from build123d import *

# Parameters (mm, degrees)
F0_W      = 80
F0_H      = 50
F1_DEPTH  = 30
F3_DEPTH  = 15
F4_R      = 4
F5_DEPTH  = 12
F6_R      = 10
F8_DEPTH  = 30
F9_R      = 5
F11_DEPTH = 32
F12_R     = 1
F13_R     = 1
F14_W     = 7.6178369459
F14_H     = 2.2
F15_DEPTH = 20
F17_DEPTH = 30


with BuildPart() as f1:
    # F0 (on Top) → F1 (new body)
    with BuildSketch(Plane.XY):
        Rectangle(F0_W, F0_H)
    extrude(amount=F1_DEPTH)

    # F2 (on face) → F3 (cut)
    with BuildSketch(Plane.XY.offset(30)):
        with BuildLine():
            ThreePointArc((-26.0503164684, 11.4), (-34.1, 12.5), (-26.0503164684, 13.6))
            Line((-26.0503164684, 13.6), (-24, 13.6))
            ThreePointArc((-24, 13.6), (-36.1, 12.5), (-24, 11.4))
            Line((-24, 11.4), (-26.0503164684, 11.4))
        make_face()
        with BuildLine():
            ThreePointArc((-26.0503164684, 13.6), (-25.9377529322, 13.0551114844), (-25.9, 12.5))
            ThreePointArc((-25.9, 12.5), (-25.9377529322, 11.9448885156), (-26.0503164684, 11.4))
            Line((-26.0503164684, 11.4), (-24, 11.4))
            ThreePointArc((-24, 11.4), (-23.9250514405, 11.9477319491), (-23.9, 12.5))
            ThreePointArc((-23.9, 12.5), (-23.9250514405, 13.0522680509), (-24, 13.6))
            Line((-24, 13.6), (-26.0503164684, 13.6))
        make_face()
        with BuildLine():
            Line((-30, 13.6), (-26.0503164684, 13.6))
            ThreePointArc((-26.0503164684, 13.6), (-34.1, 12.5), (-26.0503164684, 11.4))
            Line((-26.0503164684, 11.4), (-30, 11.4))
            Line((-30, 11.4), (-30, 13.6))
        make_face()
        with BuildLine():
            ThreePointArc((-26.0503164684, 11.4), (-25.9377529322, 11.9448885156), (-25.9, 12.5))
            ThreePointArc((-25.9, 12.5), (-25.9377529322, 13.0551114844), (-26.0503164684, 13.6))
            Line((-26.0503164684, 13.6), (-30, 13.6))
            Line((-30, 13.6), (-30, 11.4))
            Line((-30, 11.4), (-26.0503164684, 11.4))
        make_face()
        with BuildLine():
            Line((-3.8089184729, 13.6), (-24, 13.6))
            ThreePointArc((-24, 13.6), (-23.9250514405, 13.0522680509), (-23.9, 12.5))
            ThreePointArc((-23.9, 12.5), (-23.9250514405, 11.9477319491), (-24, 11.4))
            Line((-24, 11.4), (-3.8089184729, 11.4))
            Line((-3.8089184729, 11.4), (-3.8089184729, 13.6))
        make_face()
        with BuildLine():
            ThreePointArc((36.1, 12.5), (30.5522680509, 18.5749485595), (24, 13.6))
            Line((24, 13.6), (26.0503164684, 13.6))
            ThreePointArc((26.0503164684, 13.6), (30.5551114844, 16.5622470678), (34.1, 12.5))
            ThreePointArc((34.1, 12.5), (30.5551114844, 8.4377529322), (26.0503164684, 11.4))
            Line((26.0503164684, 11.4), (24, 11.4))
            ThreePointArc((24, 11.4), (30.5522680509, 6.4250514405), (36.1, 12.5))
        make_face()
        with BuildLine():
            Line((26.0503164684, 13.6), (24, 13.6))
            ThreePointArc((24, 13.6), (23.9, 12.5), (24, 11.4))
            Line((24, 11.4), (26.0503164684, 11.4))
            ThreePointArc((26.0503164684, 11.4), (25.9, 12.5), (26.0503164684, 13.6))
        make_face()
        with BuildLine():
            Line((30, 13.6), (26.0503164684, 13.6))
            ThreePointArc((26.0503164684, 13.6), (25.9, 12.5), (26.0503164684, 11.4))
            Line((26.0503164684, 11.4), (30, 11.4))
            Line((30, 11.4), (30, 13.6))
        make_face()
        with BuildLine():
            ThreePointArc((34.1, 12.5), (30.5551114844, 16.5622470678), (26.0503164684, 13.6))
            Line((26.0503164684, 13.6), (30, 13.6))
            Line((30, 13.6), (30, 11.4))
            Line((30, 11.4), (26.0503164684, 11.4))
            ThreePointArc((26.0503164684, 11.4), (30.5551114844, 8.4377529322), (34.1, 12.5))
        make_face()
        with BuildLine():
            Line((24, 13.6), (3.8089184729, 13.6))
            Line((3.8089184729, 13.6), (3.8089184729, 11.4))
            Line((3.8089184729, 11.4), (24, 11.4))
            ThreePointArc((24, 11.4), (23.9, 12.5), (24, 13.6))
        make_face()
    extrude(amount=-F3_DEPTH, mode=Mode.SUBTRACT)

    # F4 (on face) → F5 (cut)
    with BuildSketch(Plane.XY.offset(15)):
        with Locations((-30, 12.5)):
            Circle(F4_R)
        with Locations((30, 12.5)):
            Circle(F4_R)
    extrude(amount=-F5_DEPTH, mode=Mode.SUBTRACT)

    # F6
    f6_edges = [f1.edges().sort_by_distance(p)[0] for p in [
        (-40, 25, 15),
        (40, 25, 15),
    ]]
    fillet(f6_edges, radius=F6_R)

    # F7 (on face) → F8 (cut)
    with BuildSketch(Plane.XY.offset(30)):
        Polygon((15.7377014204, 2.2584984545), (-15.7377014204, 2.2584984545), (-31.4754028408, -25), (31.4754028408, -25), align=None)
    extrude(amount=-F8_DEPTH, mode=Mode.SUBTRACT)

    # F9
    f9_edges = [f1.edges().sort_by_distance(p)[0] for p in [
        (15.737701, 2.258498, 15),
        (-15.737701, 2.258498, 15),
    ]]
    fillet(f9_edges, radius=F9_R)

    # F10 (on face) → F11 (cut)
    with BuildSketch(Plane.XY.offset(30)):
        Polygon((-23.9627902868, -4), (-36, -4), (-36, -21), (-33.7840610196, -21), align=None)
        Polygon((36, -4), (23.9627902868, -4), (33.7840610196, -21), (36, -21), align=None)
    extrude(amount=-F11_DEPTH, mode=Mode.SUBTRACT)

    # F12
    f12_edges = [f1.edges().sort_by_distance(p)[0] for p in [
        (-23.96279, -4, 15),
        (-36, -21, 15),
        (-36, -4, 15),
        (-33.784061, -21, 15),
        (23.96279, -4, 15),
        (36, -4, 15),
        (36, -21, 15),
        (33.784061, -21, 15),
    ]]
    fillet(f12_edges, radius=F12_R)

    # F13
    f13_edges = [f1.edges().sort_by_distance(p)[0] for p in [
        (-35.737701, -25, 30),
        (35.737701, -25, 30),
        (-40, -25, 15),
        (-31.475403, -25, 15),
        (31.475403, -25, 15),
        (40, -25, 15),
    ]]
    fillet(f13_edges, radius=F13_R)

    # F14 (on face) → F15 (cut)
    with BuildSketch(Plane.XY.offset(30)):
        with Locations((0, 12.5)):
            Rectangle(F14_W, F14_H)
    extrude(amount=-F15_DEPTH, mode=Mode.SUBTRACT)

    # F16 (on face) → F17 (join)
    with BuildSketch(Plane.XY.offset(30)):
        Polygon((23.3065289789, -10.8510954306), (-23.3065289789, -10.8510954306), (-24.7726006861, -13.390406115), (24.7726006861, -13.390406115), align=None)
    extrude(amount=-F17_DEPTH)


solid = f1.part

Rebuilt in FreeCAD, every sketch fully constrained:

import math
import FreeCAD as App
import Part
import Sketcher
from FreeCAD import Vector
Q = App.Units.Quantity


def edges_at(feature, points):
    """Names of the edges that pass closest to the given points."""
    edges = feature.Shape.Edges
    near = lambda p: min(range(len(edges)), key=lambda i: edges[i].distToShape(Part.Vertex(*p))[0])
    return sorted({f"Edge{near(p) + 1}" for p in points})

doc = App.newDocument("Part")
body = doc.addObject("PartDesign::Body", "Body")

sketch1 = doc.addObject("Sketcher::SketchObject", "Sketch")
body.addObject(sketch1)
sketch1.AttachmentSupport = (doc.XY_Plane, [""])
sketch1.MapMode = "FlatFace"
sketch1.addGeometry(Part.LineSegment(Vector(-40, 25, 0), Vector(-40, -25, 0)), False)
sketch1.addGeometry(Part.LineSegment(Vector(-40, -25, 0), Vector(40, -25, 0)), False)
sketch1.addGeometry(Part.LineSegment(Vector(40, -25, 0), Vector(40, 25, 0)), False)
sketch1.addGeometry(Part.LineSegment(Vector(40, 25, 0), Vector(-40, 25, 0)), False)
sketch1.addConstraint(Sketcher.Constraint("Coincident", 0, 2, 1, 1))
sketch1.addConstraint(Sketcher.Constraint("Coincident", 1, 2, 2, 1))
sketch1.addConstraint(Sketcher.Constraint("Coincident", 2, 2, 3, 1))
sketch1.addConstraint(Sketcher.Constraint("Coincident", 3, 2, 0, 1))
sketch1.addConstraint(Sketcher.Constraint("Vertical", 0))
sketch1.addConstraint(Sketcher.Constraint("Horizontal", 1))
sketch1.addConstraint(Sketcher.Constraint("Vertical", 2))
sketch1.addConstraint(Sketcher.Constraint("Horizontal", 3))
sketch1.addConstraint(Sketcher.Constraint("Symmetric", 0, 2, 2, 2, -1, 1))
sketch1.addConstraint(Sketcher.Constraint("DistanceX", 1, 1, 1, 2, Q("80 mm")))
sketch1.addConstraint(Sketcher.Constraint("DistanceY", 0, 2, 0, 1, Q("50 mm")))
pad1 = doc.addObject("PartDesign::Pad", "Pad")
body.addObject(pad1)
pad1.Profile = sketch1
pad1.Length = 30

sketch2 = doc.addObject("Sketcher::SketchObject", "Sketch001")
body.addObject(sketch2)
sketch2.AttachmentSupport = (doc.XY_Plane, [""])
sketch2.MapMode = "FlatFace"
sketch2.AttachmentOffset = App.Placement(Vector(0, 0, 30), App.Rotation())
sketch2.addGeometry(Part.ArcOfCircle(Part.Circle(Vector(-30, 12.5, 0), Vector(0, 0, 1), 6.1), math.radians(10), math.radians(350)), False)
sketch2.addGeometry(Part.LineSegment(Vector(-24, 11.4, 0), Vector(-3.8, 11.4, 0)), False)
sketch2.addGeometry(Part.LineSegment(Vector(-3.8, 11.4, 0), Vector(-3.8, 13.6, 0)), False)
sketch2.addGeometry(Part.LineSegment(Vector(-3.8, 13.6, 0), Vector(-24, 13.6, 0)), False)
sketch2.addGeometry(Part.ArcOfCircle(Part.Circle(Vector(30, 12.5, 0), Vector(0, 0, 1), 6.1), math.radians(0), math.radians(170)), False)
sketch2.addGeometry(Part.LineSegment(Vector(24, 13.6, 0), Vector(3.8, 13.6, 0)), False)
sketch2.addGeometry(Part.LineSegment(Vector(3.8, 13.6, 0), Vector(3.8, 11.4, 0)), False)
sketch2.addGeometry(Part.LineSegment(Vector(3.8, 11.4, 0), Vector(24, 11.4, 0)), False)
sketch2.addGeometry(Part.ArcOfCircle(Part.Circle(Vector(30, 12.5, 0), Vector(0, 0, 1), 6.1), math.radians(-170), math.radians(0)), False)
sketch2.addConstraint(Sketcher.Constraint("Coincident", 0, 2, 1, 1))
sketch2.addConstraint(Sketcher.Constraint("Coincident", 1, 2, 2, 1))
sketch2.addConstraint(Sketcher.Constraint("Coincident", 2, 2, 3, 1))
sketch2.addConstraint(Sketcher.Constraint("Coincident", 3, 2, 0, 1))
sketch2.addConstraint(Sketcher.Constraint("Coincident", 4, 2, 5, 1))
sketch2.addConstraint(Sketcher.Constraint("Coincident", 5, 2, 6, 1))
sketch2.addConstraint(Sketcher.Constraint("Coincident", 6, 2, 7, 1))
sketch2.addConstraint(Sketcher.Constraint("Coincident", 7, 2, 8, 1))
sketch2.addConstraint(Sketcher.Constraint("Tangent", 8, 2, 4, 1))
sketch2.addConstraint(Sketcher.Constraint("Horizontal", 1))
sketch2.addConstraint(Sketcher.Constraint("Vertical", 2))
sketch2.addConstraint(Sketcher.Constraint("Horizontal", 3))
sketch2.addConstraint(Sketcher.Constraint("Horizontal", 5))
sketch2.addConstraint(Sketcher.Constraint("Vertical", 6))
sketch2.addConstraint(Sketcher.Constraint("Horizontal", 7))
sketch2.addConstraint(Sketcher.Constraint("Equal", 0, 4))
sketch2.addConstraint(Sketcher.Constraint("Equal", 4, 8))
sketch2.addConstraint(Sketcher.Constraint("Symmetric", 0, 3, 4, 3, -2))
sketch2.addConstraint(Sketcher.Constraint("Symmetric", 2, 2, 5, 2, -2))
sketch2.addConstraint(Sketcher.Constraint("Horizontal", 1, 2, 6, 2))
sketch2.addConstraint(Sketcher.Constraint("Horizontal", 4, 3, 8, 2))
sketch2.addConstraint(Sketcher.Constraint("Vertical", 0, 2, 3, 2))
sketch2.addConstraint(Sketcher.Constraint("Radius", 0, Q("6.1 mm")))
sketch2.addConstraint(Sketcher.Constraint("DistanceY", 2, 1, 2, 2, Q("2.2 mm")))
sketch2.addConstraint(Sketcher.Constraint("DistanceX", 0, 3, -1, 1, Q("30 mm")))
sketch2.addConstraint(Sketcher.Constraint("DistanceY", -1, 1, 0, 3, Q("12.5 mm")))
sketch2.addConstraint(Sketcher.Constraint("DistanceX", 1, 1, 1, 2, Q("20.191082 mm")))
pocket1 = doc.addObject("PartDesign::Pocket", "Pocket")
body.addObject(pocket1)
pocket1.Profile = sketch2
pocket1.Length = 15

sketch3 = doc.addObject("Sketcher::SketchObject", "Sketch002")
body.addObject(sketch3)
sketch3.AttachmentSupport = (doc.XY_Plane, [""])
sketch3.MapMode = "FlatFace"
sketch3.AttachmentOffset = App.Placement(Vector(0, 0, 15), App.Rotation())
sketch3.addGeometry(Part.Circle(Vector(-30, 12.5, 0), Vector(0, 0, 1), 4), False)
sketch3.addGeometry(Part.Circle(Vector(30, 12.5, 0), Vector(0, 0, 1), 4), False)
sketch3.addConstraint(Sketcher.Constraint("Equal", 0, 1))
sketch3.addConstraint(Sketcher.Constraint("Symmetric", 0, 3, 1, 3, -2))
sketch3.addConstraint(Sketcher.Constraint("Diameter", 0, Q("8 mm")))
sketch3.addConstraint(Sketcher.Constraint("DistanceX", 0, 3, -1, 1, Q("30 mm")))
sketch3.addConstraint(Sketcher.Constraint("DistanceY", -1, 1, 0, 3, Q("12.5 mm")))
pocket2 = doc.addObject("PartDesign::Pocket", "Pocket001")
body.addObject(pocket2)
pocket2.Profile = sketch3
pocket2.Length = 12
doc.recompute()

fillet = doc.addObject("PartDesign::Fillet", "Fillet")
body.addObject(fillet)
fillet.Base = (pocket2, edges_at(pocket2, [(-40, 25, 15), (40, 25, 15)]))
fillet.Radius = 10

sketch4 = doc.addObject("Sketcher::SketchObject", "Sketch003")
body.addObject(sketch4)
sketch4.AttachmentSupport = (doc.XY_Plane, [""])
sketch4.MapMode = "FlatFace"
sketch4.AttachmentOffset = App.Placement(Vector(0, 0, 30), App.Rotation())
sketch4.addGeometry(Part.LineSegment(Vector(16, 2, 0), Vector(-16, 2, 0)), False)
sketch4.addGeometry(Part.LineSegment(Vector(-16, 2, 0), Vector(-31, -25, 0)), False)
sketch4.addGeometry(Part.LineSegment(Vector(-31, -25, 0), Vector(31, -25, 0)), False)
sketch4.addGeometry(Part.LineSegment(Vector(31, -25, 0), Vector(16, 2, 0)), False)
sketch4.addConstraint(Sketcher.Constraint("Coincident", 0, 2, 1, 1))
sketch4.addConstraint(Sketcher.Constraint("Coincident", 1, 2, 2, 1))
sketch4.addConstraint(Sketcher.Constraint("Coincident", 2, 2, 3, 1))
sketch4.addConstraint(Sketcher.Constraint("Coincident", 3, 2, 0, 1))
sketch4.addConstraint(Sketcher.Constraint("Horizontal", 0))
sketch4.addConstraint(Sketcher.Constraint("Horizontal", 2))
sketch4.addConstraint(Sketcher.Constraint("Equal", 1, 3))
sketch4.addConstraint(Sketcher.Constraint("Angle", 1, Q("-120 deg")))
sketch4.addConstraint(Sketcher.Constraint("DistanceY", 1, 2, -1, 1, Q("25 mm")))
sketch4.addConstraint(Sketcher.Constraint("DistanceX", 0, 2, -1, 1, Q("15.737701 mm")))
sketch4.addConstraint(Sketcher.Constraint("DistanceY", -1, 1, 0, 2, Q("2.258498 mm")))
sketch4.addConstraint(Sketcher.Constraint("DistanceX", -1, 1, 3, 2, Q("15.737701 mm")))
pocket3 = doc.addObject("PartDesign::Pocket", "Pocket002")
body.addObject(pocket3)
pocket3.Profile = sketch4
pocket3.Length = 30
doc.recompute()

fillet2 = doc.addObject("PartDesign::Fillet", "Fillet001")
body.addObject(fillet2)
fillet2.Base = (pocket3, edges_at(pocket3, [(15.738, 2.258, 15), (-15.738, 2.258, 15)]))
fillet2.Radius = 5

sketch5 = doc.addObject("Sketcher::SketchObject", "Sketch004")
body.addObject(sketch5)
sketch5.AttachmentSupport = (doc.XY_Plane, [""])
sketch5.MapMode = "FlatFace"
sketch5.AttachmentOffset = App.Placement(Vector(0, 0, 30), App.Rotation())
sketch5.addGeometry(Part.LineSegment(Vector(-24, -4, 0), Vector(-36, -4, 0)), False)
sketch5.addGeometry(Part.LineSegment(Vector(-36, -4, 0), Vector(-36, -21, 0)), False)
sketch5.addGeometry(Part.LineSegment(Vector(-36, -21, 0), Vector(-33.8, -21, 0)), False)
sketch5.addGeometry(Part.LineSegment(Vector(-33.8, -21, 0), Vector(-24, -4, 0)), False)
sketch5.addGeometry(Part.LineSegment(Vector(36, -4, 0), Vector(24, -4, 0)), False)
sketch5.addGeometry(Part.LineSegment(Vector(24, -4, 0), Vector(33.8, -21, 0)), False)
sketch5.addGeometry(Part.LineSegment(Vector(33.8, -21, 0), Vector(36, -21, 0)), False)
sketch5.addGeometry(Part.LineSegment(Vector(36, -21, 0), Vector(36, -4, 0)), False)
sketch5.addConstraint(Sketcher.Constraint("Coincident", 0, 2, 1, 1))
sketch5.addConstraint(Sketcher.Constraint("Coincident", 1, 2, 2, 1))
sketch5.addConstraint(Sketcher.Constraint("Coincident", 2, 2, 3, 1))
sketch5.addConstraint(Sketcher.Constraint("Coincident", 3, 2, 0, 1))
sketch5.addConstraint(Sketcher.Constraint("Coincident", 4, 2, 5, 1))
sketch5.addConstraint(Sketcher.Constraint("Coincident", 5, 2, 6, 1))
sketch5.addConstraint(Sketcher.Constraint("Coincident", 6, 2, 7, 1))
sketch5.addConstraint(Sketcher.Constraint("Coincident", 7, 2, 4, 1))
sketch5.addConstraint(Sketcher.Constraint("Horizontal", 0))
sketch5.addConstraint(Sketcher.Constraint("Vertical", 1))
sketch5.addConstraint(Sketcher.Constraint("Horizontal", 2))
sketch5.addConstraint(Sketcher.Constraint("Horizontal", 4))
sketch5.addConstraint(Sketcher.Constraint("Horizontal", 6))
sketch5.addConstraint(Sketcher.Constraint("Vertical", 7))
sketch5.addConstraint(Sketcher.Constraint("Symmetric", 3, 2, 4, 2, -2))
sketch5.addConstraint(Sketcher.Constraint("Symmetric", 2, 2, 5, 2, -2))
sketch5.addConstraint(Sketcher.Constraint("Equal", 0, 4))
sketch5.addConstraint(Sketcher.Constraint("DistanceY", 1, 2, 1, 1, Q("17 mm")))
sketch5.addConstraint(Sketcher.Constraint("DistanceX", 0, 2, -1, 1, Q("36 mm")))
sketch5.addConstraint(Sketcher.Constraint("DistanceY", 0, 2, -1, 1, Q("4 mm")))
sketch5.addConstraint(Sketcher.Constraint("DistanceX", 0, 2, 0, 1, Q("12.03721 mm")))
sketch5.addConstraint(Sketcher.Constraint("DistanceX", 2, 1, 2, 2, Q("2.215939 mm")))
pocket4 = doc.addObject("PartDesign::Pocket", "Pocket003")
body.addObject(pocket4)
pocket4.Profile = sketch5
pocket4.Length = 32
doc.recompute()

fillet3 = doc.addObject("PartDesign::Fillet", "Fillet002")
body.addObject(fillet3)
fillet3.Base = (pocket4, edges_at(pocket4, [
    (-23.963, -4, 15),
    (-36, -21, 15),
    (-36, -4, 15),
    (-33.784, -21, 15),
    (23.963, -4, 15),
    (36, -4, 15),
    (36, -21, 15),
    (33.784, -21, 15),
]))
fillet3.Radius = 1
doc.recompute()

fillet4 = doc.addObject("PartDesign::Fillet", "Fillet003")
body.addObject(fillet4)
fillet4.Base = (fillet3, edges_at(fillet3, [
    (-35.738, -25, 30),
    (35.738, -25, 30),
    (-40, -25, 15),
    (-31.475, -25, 15),
    (31.475, -25, 15),
    (40, -25, 15),
]))
fillet4.Radius = 1

sketch6 = doc.addObject("Sketcher::SketchObject", "Sketch005")
body.addObject(sketch6)
sketch6.AttachmentSupport = (doc.XY_Plane, [""])
sketch6.MapMode = "FlatFace"
sketch6.AttachmentOffset = App.Placement(Vector(0, 0, 30), App.Rotation())
sketch6.addGeometry(Part.LineSegment(Vector(-3.8, 13.6, 0), Vector(-3.8, 11.4, 0)), False)
sketch6.addGeometry(Part.LineSegment(Vector(-3.8, 11.4, 0), Vector(3.8, 11.4, 0)), False)
sketch6.addGeometry(Part.LineSegment(Vector(3.8, 11.4, 0), Vector(3.8, 13.6, 0)), False)
sketch6.addGeometry(Part.LineSegment(Vector(3.8, 13.6, 0), Vector(-3.8, 13.6, 0)), False)
sketch6.addConstraint(Sketcher.Constraint("Coincident", 0, 2, 1, 1))
sketch6.addConstraint(Sketcher.Constraint("Coincident", 1, 2, 2, 1))
sketch6.addConstraint(Sketcher.Constraint("Coincident", 2, 2, 3, 1))
sketch6.addConstraint(Sketcher.Constraint("Coincident", 3, 2, 0, 1))
sketch6.addConstraint(Sketcher.Constraint("Vertical", 0))
sketch6.addConstraint(Sketcher.Constraint("Horizontal", 1))
sketch6.addConstraint(Sketcher.Constraint("Vertical", 2))
sketch6.addConstraint(Sketcher.Constraint("Horizontal", 3))
sketch6.addConstraint(Sketcher.Constraint("DistanceY", 0, 2, 0, 1, Q("2.2 mm")))
sketch6.addConstraint(Sketcher.Constraint("DistanceY", -1, 1, 0, 2, Q("11.4 mm")))
sketch6.addConstraint(Sketcher.Constraint("DistanceX", 1, 1, 1, 2, Q("7.617837 mm")))
sketch6.addConstraint(Sketcher.Constraint("DistanceX", 0, 2, -1, 1, Q("3.808918 mm")))
pocket5 = doc.addObject("PartDesign::Pocket", "Pocket004")
body.addObject(pocket5)
pocket5.Profile = sketch6
pocket5.Length = 20

sketch7 = doc.addObject("Sketcher::SketchObject", "Sketch006")
body.addObject(sketch7)
sketch7.AttachmentSupport = (doc.XY_Plane, [""])
sketch7.MapMode = "FlatFace"
sketch7.AttachmentOffset = App.Placement(Vector(0, 0, 30), App.Rotation())
sketch7.addGeometry(Part.LineSegment(Vector(23.3, -10.9, 0), Vector(-23.3, -10.9, 0)), False)
sketch7.addGeometry(Part.LineSegment(Vector(-23.3, -10.9, 0), Vector(-24.8, -13.4, 0)), False)
sketch7.addGeometry(Part.LineSegment(Vector(-24.8, -13.4, 0), Vector(24.8, -13.4, 0)), False)
sketch7.addGeometry(Part.LineSegment(Vector(24.8, -13.4, 0), Vector(23.3, -10.9, 0)), False)
sketch7.addConstraint(Sketcher.Constraint("Coincident", 0, 2, 1, 1))
sketch7.addConstraint(Sketcher.Constraint("Coincident", 1, 2, 2, 1))
sketch7.addConstraint(Sketcher.Constraint("Coincident", 2, 2, 3, 1))
sketch7.addConstraint(Sketcher.Constraint("Coincident", 3, 2, 0, 1))
sketch7.addConstraint(Sketcher.Constraint("Horizontal", 0))
sketch7.addConstraint(Sketcher.Constraint("Horizontal", 2))
sketch7.addConstraint(Sketcher.Constraint("Equal", 1, 3))
sketch7.addConstraint(Sketcher.Constraint("Angle", 1, Q("-120 deg")))
sketch7.addConstraint(Sketcher.Constraint("DistanceX", 2, 1, 2, 2, Q("49.545201 mm")))
sketch7.addConstraint(Sketcher.Constraint("DistanceX", 1, 2, -1, 1, Q("24.772601 mm")))
sketch7.addConstraint(Sketcher.Constraint("DistanceX", 0, 2, 0, 1, Q("46.613058 mm")))
sketch7.addConstraint(Sketcher.Constraint("DistanceY", 0, 2, -1, 1, Q("10.851095 mm")))
pad2 = doc.addObject("PartDesign::Pad", "Pad001")
body.addObject(pad2)
pad2.Profile = sketch7
pad2.Length = 30
pad2.Reversed = True

doc.recompute()
